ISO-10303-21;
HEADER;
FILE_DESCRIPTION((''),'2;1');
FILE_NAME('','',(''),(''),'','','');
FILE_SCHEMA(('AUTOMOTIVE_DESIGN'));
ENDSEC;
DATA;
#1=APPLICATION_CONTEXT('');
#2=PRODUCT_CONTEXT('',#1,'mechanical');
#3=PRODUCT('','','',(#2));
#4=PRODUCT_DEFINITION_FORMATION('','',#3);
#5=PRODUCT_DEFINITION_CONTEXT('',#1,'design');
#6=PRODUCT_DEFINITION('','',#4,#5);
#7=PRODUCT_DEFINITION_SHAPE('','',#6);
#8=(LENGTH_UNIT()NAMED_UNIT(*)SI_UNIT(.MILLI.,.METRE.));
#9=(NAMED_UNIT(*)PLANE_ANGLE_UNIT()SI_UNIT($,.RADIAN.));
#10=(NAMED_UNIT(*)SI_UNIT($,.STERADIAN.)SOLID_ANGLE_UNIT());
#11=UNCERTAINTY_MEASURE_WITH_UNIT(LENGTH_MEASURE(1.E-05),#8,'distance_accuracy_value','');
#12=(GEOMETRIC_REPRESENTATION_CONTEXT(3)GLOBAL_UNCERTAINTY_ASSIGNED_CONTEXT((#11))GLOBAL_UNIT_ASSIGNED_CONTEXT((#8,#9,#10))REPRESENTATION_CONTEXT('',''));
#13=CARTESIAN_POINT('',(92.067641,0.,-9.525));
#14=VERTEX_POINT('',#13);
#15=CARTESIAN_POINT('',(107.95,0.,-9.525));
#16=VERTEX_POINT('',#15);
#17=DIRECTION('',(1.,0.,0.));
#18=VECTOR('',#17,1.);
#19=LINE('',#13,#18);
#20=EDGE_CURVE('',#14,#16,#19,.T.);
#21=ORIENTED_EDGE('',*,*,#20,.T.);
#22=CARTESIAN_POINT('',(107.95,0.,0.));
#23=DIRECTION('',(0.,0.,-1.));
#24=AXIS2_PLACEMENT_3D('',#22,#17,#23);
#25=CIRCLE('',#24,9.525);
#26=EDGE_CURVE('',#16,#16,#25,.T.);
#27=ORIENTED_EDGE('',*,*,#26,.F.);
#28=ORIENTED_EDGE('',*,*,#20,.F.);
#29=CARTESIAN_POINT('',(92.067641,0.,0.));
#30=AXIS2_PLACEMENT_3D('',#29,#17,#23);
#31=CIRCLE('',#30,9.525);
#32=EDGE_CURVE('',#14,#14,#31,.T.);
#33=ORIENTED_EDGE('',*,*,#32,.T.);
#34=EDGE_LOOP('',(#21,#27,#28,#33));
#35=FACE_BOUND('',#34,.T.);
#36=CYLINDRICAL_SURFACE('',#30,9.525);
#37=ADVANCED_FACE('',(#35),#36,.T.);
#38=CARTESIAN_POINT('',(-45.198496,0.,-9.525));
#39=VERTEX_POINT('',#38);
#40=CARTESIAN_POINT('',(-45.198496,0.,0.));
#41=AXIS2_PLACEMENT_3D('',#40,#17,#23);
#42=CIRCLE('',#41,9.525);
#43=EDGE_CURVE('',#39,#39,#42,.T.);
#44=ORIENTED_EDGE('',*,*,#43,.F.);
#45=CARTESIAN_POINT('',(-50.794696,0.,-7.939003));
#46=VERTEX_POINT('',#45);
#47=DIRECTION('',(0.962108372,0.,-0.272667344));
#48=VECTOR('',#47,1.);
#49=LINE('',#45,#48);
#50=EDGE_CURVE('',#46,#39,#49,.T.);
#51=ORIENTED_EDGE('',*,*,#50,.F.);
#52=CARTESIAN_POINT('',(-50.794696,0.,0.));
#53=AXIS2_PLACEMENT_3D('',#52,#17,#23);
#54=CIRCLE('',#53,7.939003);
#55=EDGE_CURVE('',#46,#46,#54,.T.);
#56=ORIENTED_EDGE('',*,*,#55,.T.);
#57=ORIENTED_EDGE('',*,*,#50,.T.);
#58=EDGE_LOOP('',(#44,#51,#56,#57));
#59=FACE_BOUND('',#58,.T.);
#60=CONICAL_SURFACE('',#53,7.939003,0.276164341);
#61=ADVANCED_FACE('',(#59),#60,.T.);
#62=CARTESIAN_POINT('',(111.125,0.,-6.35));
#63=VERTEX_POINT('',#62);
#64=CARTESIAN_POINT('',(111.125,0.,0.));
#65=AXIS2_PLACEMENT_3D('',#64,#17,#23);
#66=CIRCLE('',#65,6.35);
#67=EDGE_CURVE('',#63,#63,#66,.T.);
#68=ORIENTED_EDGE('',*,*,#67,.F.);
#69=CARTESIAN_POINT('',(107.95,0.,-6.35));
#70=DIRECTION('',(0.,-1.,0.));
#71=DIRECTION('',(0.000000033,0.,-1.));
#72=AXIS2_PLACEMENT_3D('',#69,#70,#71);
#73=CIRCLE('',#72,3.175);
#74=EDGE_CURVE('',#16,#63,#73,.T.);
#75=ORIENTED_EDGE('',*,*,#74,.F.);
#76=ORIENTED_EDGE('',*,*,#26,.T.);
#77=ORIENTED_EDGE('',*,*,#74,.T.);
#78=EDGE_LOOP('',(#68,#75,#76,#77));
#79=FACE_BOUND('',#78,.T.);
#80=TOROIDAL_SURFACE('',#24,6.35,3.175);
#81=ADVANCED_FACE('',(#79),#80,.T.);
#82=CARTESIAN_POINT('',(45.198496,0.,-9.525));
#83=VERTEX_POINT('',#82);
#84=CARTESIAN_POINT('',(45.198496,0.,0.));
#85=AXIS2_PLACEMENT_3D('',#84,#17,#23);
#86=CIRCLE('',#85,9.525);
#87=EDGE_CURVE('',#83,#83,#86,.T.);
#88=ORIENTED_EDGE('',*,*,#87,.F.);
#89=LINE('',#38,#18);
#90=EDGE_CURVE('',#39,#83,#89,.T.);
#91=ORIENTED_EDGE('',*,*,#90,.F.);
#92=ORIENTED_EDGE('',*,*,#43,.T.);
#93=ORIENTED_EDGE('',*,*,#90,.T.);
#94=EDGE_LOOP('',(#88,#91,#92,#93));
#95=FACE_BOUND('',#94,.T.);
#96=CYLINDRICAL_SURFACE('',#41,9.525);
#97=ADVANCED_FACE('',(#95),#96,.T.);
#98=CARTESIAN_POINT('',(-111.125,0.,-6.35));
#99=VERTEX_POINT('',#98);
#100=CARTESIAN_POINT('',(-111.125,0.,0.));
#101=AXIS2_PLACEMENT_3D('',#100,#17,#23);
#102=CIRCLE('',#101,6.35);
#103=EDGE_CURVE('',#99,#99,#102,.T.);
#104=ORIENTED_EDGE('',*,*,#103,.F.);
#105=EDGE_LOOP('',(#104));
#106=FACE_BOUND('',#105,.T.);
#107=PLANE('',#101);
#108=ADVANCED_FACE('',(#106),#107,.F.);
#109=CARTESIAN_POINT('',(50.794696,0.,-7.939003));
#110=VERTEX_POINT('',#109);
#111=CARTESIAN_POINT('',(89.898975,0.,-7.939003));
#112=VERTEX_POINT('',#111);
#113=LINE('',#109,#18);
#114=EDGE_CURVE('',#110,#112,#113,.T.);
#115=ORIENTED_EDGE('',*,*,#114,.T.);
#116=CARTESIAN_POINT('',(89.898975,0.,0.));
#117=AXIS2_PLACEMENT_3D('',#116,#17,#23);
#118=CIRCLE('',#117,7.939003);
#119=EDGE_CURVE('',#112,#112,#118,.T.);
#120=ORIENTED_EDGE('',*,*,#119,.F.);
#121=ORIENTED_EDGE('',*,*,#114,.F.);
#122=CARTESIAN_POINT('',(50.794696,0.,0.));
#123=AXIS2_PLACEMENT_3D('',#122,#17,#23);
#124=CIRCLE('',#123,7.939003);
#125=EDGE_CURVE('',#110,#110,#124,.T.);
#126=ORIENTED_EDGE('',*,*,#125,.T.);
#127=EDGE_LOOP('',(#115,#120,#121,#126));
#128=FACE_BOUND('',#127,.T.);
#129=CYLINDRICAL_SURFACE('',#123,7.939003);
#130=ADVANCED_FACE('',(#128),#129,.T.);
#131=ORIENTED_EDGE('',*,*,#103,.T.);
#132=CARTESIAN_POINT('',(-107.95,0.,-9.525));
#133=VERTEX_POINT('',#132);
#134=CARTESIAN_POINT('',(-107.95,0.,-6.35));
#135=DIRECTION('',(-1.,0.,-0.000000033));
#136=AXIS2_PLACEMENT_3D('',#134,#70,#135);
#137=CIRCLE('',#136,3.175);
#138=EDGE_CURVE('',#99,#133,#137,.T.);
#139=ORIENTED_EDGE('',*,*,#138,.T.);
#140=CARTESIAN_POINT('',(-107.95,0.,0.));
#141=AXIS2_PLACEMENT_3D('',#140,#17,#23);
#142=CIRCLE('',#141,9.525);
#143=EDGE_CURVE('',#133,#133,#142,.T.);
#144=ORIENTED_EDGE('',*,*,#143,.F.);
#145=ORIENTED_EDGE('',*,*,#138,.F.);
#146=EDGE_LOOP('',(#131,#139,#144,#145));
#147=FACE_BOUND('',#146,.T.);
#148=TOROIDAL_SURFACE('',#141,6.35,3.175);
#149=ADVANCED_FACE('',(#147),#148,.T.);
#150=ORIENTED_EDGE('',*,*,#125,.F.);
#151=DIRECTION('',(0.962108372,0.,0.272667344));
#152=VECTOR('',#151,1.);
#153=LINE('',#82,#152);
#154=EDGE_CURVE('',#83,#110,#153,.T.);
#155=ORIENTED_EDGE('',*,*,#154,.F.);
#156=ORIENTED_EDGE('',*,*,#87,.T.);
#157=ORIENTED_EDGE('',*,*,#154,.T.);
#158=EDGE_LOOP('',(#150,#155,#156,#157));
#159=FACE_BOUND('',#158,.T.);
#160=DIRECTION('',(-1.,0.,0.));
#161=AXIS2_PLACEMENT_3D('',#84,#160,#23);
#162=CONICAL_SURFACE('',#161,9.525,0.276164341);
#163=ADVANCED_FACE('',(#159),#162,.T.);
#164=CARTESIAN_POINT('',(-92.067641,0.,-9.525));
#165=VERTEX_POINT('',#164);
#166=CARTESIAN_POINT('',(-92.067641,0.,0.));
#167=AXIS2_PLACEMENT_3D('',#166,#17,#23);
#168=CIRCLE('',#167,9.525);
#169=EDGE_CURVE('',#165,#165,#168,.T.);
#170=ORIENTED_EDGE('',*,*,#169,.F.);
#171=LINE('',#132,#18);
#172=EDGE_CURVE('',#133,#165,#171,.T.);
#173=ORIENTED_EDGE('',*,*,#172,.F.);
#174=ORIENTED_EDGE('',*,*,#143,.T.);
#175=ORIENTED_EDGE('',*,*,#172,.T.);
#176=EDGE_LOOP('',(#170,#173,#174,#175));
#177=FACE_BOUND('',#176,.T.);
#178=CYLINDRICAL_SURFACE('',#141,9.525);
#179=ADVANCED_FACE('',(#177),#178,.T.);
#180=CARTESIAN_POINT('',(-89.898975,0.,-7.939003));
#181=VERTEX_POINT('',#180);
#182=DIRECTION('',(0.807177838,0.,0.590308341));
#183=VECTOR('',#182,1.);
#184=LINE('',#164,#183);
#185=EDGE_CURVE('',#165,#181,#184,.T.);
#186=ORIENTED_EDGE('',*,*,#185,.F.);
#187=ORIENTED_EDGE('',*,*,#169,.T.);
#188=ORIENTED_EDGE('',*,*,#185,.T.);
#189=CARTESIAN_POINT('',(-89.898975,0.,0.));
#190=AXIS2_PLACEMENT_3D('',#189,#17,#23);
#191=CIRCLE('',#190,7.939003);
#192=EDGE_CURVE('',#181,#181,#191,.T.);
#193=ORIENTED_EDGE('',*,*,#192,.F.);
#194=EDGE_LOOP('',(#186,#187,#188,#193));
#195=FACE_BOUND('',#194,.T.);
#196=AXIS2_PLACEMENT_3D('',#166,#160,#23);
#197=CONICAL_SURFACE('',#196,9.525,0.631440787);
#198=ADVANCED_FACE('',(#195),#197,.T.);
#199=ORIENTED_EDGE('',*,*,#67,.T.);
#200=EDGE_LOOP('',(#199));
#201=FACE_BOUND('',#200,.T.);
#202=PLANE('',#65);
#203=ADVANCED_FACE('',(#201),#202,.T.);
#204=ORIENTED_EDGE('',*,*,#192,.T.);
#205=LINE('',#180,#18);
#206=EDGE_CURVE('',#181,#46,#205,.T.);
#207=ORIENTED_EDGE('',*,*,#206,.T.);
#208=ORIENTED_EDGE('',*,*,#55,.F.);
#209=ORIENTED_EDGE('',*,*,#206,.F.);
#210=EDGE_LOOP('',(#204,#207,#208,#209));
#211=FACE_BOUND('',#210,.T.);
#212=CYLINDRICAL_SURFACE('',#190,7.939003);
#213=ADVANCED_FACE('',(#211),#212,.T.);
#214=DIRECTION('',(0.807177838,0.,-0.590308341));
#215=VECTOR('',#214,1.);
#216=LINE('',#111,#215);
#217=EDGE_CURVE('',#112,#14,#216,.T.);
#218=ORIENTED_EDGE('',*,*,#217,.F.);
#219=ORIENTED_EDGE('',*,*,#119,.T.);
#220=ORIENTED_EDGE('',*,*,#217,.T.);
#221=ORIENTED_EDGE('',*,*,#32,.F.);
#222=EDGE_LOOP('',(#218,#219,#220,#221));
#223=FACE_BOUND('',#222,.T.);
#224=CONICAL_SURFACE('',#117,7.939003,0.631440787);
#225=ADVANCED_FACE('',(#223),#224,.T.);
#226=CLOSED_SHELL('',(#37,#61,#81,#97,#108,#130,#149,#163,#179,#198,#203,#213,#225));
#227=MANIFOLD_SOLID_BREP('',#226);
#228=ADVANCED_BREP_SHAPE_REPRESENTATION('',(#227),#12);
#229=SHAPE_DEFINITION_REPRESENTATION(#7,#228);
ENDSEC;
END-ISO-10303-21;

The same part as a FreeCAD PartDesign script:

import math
import FreeCAD as App
import Part
import Sketcher
from FreeCAD import Vector
Q = App.Units.Quantity

doc = App.newDocument("Part")
params = doc.addObject("Spreadsheet::Sheet", "Params")
for row, (alias, value) in enumerate([
    ("sketch1_radius", "0.125 in"),
    ("sketch1_width", "8.75 in"),
    ("sketch1_height", "0.25 in"),
    ("sketch1_length", "0.229 in"),
    ("revolution_angle", "360 deg"),
], start=1):
    params.set(f"A{row}", alias)
    params.set(f"B{row}", "=" + value)
    params.setAlias(f"B{row}", alias)

body = doc.addObject("PartDesign::Body", "Body")

# Sketch on XZ plane
sketch1 = body.newObject("Sketcher::SketchObject", "Sketch")
sketch1.AttachmentSupport = (doc.getObject("XZ_Plane"), [""])
sketch1.MapMode = "FlatFace"
sketch1.addGeometry([
    Part.LineSegment(Vector(92.1, -9.5, 0), Vector(108, -9.5, 0)),  # 0
    Part.ArcOfCircle(Part.Circle(Vector(107.9, -6.3, 0), Vector(0, 0, 1), 3.2), math.radians(-90), math.radians(0)),  # 1
    Part.LineSegment(Vector(111.1, -6.3, 0), Vector(111.1, 0, 0)),  # 2
    Part.LineSegment(Vector(111.1, 0, 0), Vector(-111.1, 0, 0)),  # 3
    Part.LineSegment(Vector(-111.1, 0, 0), Vector(-111.1, -6.3, 0)),  # 4
    Part.ArcOfCircle(Part.Circle(Vector(-107.9, -6.3, 0), Vector(0, 0, 1), 3.2), math.radians(-180), math.radians(-90)),  # 5
    Part.LineSegment(Vector(-108, -9.5, 0), Vector(-92.1, -9.5, 0)),  # 6
    Part.LineSegment(Vector(-92.1, -9.5, 0), Vector(-89.9, -7.9, 0)),  # 7
    Part.LineSegment(Vector(-89.9, -7.9, 0), Vector(-50.8, -7.9, 0)),  # 8
    Part.LineSegment(Vector(-50.8, -7.9, 0), Vector(-45.2, -9.5, 0)),  # 9
    Part.LineSegment(Vector(-45.2, -9.5, 0), Vector(45.2, -9.5, 0)),  # 10
    Part.LineSegment(Vector(45.2, -9.5, 0), Vector(50.8, -7.9, 0)),  # 11
    Part.LineSegment(Vector(50.8, -7.9, 0), Vector(89.9, -7.9, 0)),  # 12
    Part.LineSegment(Vector(89.9, -7.9, 0), Vector(92.1, -9.5, 0)),  # 13
], False)
sketch1.addConstraint([
    Sketcher.Constraint("Tangent", 0, 2, 1, 1),
    Sketcher.Constraint("Tangent", 1, 2, 2, 1),
    Sketcher.Constraint("Coincident", 2, 2, 3, 1),
    Sketcher.Constraint("Coincident", 3, 2, 4, 1),
    Sketcher.Constraint("Tangent", 4, 2, 5, 1),
    Sketcher.Constraint("Tangent", 5, 2, 6, 1),
    Sketcher.Constraint("Coincident", 6, 2, 7, 1),
    Sketcher.Constraint("Coincident", 7, 2, 8, 1),
    Sketcher.Constraint("Coincident", 8, 2, 9, 1),
    Sketcher.Constraint("Coincident", 9, 2, 10, 1),
    Sketcher.Constraint("Coincident", 10, 2, 11, 1),
    Sketcher.Constraint("Coincident", 11, 2, 12, 1),
    Sketcher.Constraint("Coincident", 12, 2, 13, 1),
    Sketcher.Constraint("Coincident", 13, 2, 0, 1),
    Sketcher.Constraint("Horizontal", 0),
    Sketcher.Constraint("Vertical", 2),
    Sketcher.Constraint("Horizontal", 3),
    Sketcher.Constraint("Vertical", 4),
    Sketcher.Constraint("Horizontal", 6),
    Sketcher.Constraint("Horizontal", 8),
    Sketcher.Constraint("Horizontal", 10),
    Sketcher.Constraint("Horizontal", 12),
    Sketcher.Constraint("Equal", 1, 5),
    Sketcher.Constraint("Symmetric", 2, 2, 3, 2, -1, 1),
    Sketcher.Constraint("Symmetric", 8, 2, 11, 2, -2),
    Sketcher.Constraint("Symmetric", 6, 2, 13, 2, -2),
    Sketcher.Constraint("Horizontal", 6, 2, 9, 2),
    Sketcher.Constraint("Equal", 8, 12),
    Sketcher.Constraint("Equal", 9, 11),
    Sketcher.Constraint("Radius", 1, Q("0.125 in")),
    Sketcher.Constraint("DistanceX", 3, 2, 3, 1, Q("8.75 in")),
    Sketcher.Constraint("DistanceY", 2, 1, 2, 2, Q("0.25 in")),
    Sketcher.Constraint("Distance", 9, Q("0.229 in")),
    Sketcher.Constraint("DistanceX", 0, 1, 0, 2, 15.882359),
    Sketcher.Constraint("DistanceX", 8, 1, 8, 2, 39.104279),
    Sketcher.Constraint("DistanceX", 10, 1, 10, 2, 90.396992),
    Sketcher.Constraint("DistanceX", 8, 2, 9, 2, 5.5962),
])
sketch1.setExpression("Constraints[29]", "Params.sketch1_radius")
sketch1.setExpression("Constraints[30]", "Params.sketch1_width")
sketch1.setExpression("Constraints[31]", "Params.sketch1_height")
sketch1.setExpression("Constraints[32]", "Params.sketch1_length")
revolution = body.newObject("PartDesign::Revolution", "Revolution")
revolution.Profile = sketch1
revolution.ReferenceAxis = (sketch1, ["H_Axis"])
revolution.setExpression("Angle", "Params.revolution_angle")

doc.recompute()
